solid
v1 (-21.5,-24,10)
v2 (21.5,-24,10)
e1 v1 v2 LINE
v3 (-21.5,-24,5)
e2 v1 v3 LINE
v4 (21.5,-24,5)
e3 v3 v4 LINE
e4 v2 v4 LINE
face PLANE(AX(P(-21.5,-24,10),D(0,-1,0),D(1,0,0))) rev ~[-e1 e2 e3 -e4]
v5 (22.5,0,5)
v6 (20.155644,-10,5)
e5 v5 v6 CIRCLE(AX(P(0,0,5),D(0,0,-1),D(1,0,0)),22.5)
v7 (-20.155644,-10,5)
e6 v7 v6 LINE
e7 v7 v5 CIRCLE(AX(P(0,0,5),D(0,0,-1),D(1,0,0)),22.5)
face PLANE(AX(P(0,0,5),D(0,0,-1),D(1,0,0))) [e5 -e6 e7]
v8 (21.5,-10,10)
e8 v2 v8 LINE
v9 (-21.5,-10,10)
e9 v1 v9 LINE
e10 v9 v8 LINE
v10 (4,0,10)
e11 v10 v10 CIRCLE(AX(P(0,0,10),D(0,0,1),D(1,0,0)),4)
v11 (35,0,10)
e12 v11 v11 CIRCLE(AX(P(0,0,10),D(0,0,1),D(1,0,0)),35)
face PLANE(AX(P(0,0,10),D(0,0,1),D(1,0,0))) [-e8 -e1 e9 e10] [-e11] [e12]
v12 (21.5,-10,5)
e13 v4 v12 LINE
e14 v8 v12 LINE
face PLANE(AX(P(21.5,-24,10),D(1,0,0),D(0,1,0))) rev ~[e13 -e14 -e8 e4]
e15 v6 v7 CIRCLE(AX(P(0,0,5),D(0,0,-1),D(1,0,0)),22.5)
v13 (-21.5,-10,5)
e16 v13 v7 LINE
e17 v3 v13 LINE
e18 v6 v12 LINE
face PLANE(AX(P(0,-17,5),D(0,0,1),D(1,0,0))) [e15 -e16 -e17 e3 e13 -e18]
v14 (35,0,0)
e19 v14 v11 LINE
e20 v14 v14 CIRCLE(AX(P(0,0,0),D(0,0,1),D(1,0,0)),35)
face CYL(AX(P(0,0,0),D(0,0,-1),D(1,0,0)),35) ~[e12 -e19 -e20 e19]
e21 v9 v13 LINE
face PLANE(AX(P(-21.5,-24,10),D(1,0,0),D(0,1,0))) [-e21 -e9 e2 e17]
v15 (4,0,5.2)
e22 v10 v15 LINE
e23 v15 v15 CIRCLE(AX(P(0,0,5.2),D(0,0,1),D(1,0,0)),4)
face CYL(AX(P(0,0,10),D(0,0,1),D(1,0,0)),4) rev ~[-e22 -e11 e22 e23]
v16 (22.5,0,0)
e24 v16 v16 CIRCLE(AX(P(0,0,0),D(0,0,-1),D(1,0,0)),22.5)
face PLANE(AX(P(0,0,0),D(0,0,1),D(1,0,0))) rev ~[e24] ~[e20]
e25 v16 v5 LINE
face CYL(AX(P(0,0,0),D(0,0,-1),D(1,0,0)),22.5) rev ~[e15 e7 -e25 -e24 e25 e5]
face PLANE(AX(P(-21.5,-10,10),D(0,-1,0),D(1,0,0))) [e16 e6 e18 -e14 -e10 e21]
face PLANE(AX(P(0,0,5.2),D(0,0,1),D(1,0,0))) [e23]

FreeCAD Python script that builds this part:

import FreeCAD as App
import Part
import Sketcher
from FreeCAD import Vector


def add_polygon(sketch, points):
    """Adds a closed chain of lines whose ends are joined by coincident constraints."""
    first, n = sketch.GeometryCount, len(points)
    for a, b in zip(points, points[1:] + points[:1]):
        sketch.addGeometry(Part.LineSegment(App.Vector(*a, 0), App.Vector(*b, 0)), False)
    for i in range(n):
        sketch.addConstraint(Sketcher.Constraint("Coincident", first + i, 2, first + (i + 1) % n, 1))

doc = App.newDocument("Part")
params = doc.addObject("Spreadsheet::Sheet", "Params")
for row, (alias, value) in enumerate([
    ("sketch1_diameter", "70 mm"),
    ("pad1_length", "10 mm"),
    ("sketch2_diameter", "45 mm"),
    ("pocket1_length", "5 mm"),
    ("sketch3_width", "43 mm"),
    ("sketch3_height", "14 mm"),
    ("pocket2_length", "5 mm"),
    ("sketch4_diameter", "8 mm"),
    ("pocket3_length", "4.8 mm"),
], start=1):
    params.set(f"A{row}", alias)
    params.set(f"B{row}", "=" + value)
    params.setAlias(f"B{row}", alias)

body = doc.addObject("PartDesign::Body", "Body")

# Sketch on XY plane
sketch1 = body.newObject("Sketcher::SketchObject", "Sketch")
sketch1.AttachmentSupport = (doc.getObject("XY_Plane"), [""])
sketch1.MapMode = "FlatFace"
sketch1.addGeometry(Part.Circle(Vector(0, 0, 0), Vector(0, 0, 1), 35), False)
sketch1.addConstraint(Sketcher.Constraint("Coincident", 0, 3, -1, 1))
sketch1.addConstraint(Sketcher.Constraint("Diameter", 0, 70.0))
sketch1.setExpression("Constraints[1]", "Params.sketch1_diameter")
pad1 = body.newObject("PartDesign::Pad", "Pad")
pad1.Profile = sketch1
pad1.setExpression("Length", "Params.pad1_length")

# Sketch on XY plane
sketch2 = body.newObject("Sketcher::SketchObject", "Sketch001")
sketch2.AttachmentSupport = (doc.getObject("XY_Plane"), [""])
sketch2.MapMode = "FlatFace"
sketch2.addGeometry(Part.Circle(Vector(0, 0, 0), Vector(0, 0, 1), 22), False)
sketch2.addConstraint(Sketcher.Constraint("Coincident", 0, 3, -1, 1))
sketch2.addConstraint(Sketcher.Constraint("Diameter", 0, 45.0))
sketch2.setExpression("Constraints[1]", "Params.sketch2_diameter")
pocket1 = body.newObject("PartDesign::Pocket", "Pocket")
pocket1.Profile = sketch2
pocket1.setExpression("Length", "Params.pocket1_length")
pocket1.Reversed = True

# Sketch on XY plane
sketch3 = body.newObject("Sketcher::SketchObject", "Sketch002")
sketch3.AttachmentSupport = (doc.getObject("XY_Plane"), [""])
sketch3.MapMode = "FlatFace"
sketch3.AttachmentOffset = App.Placement(Vector(0, 0, 10), App.Rotation())
add_polygon(sketch3, [(-22, -10), (-22, -24), (22, -24), (22, -10)])  # lines 0-3
sketch3.addConstraint(Sketcher.Constraint("Vertical", 0))
sketch3.addConstraint(Sketcher.Constraint("Horizontal", 1))
sketch3.addConstraint(Sketcher.Constraint("Vertical", 2))
sketch3.addConstraint(Sketcher.Constraint("Horizontal", 3))
sketch3.addConstraint(Sketcher.Constraint("DistanceX", 1, 1, 1, 2, 43.0))
sketch3.addConstraint(Sketcher.Constraint("DistanceY", 0, 2, 0, 1, 14.0))
sketch3.addConstraint(Sketcher.Constraint("DistanceY", 0, 2, -1, 1, 24.0))
sketch3.addConstraint(Sketcher.Constraint("DistanceX", 0, 2, -1, 1, 21.5))
sketch3.setExpression("Constraints[8]", "Params.sketch3_width")
sketch3.setExpression("Constraints[9]", "Params.sketch3_height")
pocket2 = body.newObject("PartDesign::Pocket", "Pocket001")
pocket2.Profile = sketch3
pocket2.setExpression("Length", "Params.pocket2_length")

# Sketch on XY plane
sketch4 = body.newObject("Sketcher::SketchObject", "Sketch003")
sketch4.AttachmentSupport = (doc.getObject("XY_Plane"), [""])
sketch4.MapMode = "FlatFace"
sketch4.AttachmentOffset = App.Placement(Vector(0, 0, 10), App.Rotation())
sketch4.addGeometry(Part.Circle(Vector(0, 0, 0), Vector(0, 0, 1), 4), False)
sketch4.addConstraint(Sketcher.Constraint("Coincident", 0, 3, -1, 1))
sketch4.addConstraint(Sketcher.Constraint("Diameter", 0, 8.0))
sketch4.setExpression("Constraints[1]", "Params.sketch4_diameter")
pocket3 = body.newObject("PartDesign::Pocket", "Pocket002")
pocket3.Profile = sketch4
pocket3.setExpression("Length", "Params.pocket3_length")

doc.recompute()
